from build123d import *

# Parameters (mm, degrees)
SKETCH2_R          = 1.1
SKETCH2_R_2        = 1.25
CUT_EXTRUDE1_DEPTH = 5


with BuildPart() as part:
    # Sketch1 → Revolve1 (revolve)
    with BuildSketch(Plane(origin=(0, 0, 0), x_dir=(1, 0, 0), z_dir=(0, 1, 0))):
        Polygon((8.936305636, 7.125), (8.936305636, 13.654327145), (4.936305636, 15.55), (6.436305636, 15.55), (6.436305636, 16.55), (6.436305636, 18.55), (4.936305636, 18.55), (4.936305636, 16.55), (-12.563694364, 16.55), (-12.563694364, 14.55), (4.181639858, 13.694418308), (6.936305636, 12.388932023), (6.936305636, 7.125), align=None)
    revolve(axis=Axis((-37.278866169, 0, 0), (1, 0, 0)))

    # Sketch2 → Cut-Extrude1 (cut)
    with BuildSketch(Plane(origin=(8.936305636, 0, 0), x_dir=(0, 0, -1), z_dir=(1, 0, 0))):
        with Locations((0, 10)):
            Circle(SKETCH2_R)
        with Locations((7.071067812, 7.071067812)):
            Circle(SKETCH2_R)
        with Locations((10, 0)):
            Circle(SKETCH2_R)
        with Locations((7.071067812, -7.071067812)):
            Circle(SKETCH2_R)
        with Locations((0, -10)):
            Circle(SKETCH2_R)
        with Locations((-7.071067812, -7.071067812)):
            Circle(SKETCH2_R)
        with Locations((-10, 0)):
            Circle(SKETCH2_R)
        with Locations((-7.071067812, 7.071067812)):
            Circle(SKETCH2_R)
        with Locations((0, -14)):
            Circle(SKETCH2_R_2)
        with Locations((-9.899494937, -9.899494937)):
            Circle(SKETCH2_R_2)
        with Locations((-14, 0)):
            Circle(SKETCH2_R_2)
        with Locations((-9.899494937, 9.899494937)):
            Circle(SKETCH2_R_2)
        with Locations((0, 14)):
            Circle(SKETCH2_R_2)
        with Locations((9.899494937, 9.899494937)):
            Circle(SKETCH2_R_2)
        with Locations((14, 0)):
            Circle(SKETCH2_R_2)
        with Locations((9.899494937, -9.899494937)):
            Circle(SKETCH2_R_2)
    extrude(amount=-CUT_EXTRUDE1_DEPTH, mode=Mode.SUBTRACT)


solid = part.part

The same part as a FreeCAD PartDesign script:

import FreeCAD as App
import Part
import Sketcher
Q = App.Units.Quantity


def add_polygon(sketch, points):
    """Adds a closed chain of lines whose ends are joined by coincident constraints."""
    first, n = sketch.GeometryCount, len(points)
    for a, b in zip(points, points[1:] + points[:1]):
        sketch.addGeometry(Part.LineSegment(App.Vector(*a, 0), App.Vector(*b, 0)), False)
    for i in range(n):
        sketch.addConstraint(Sketcher.Constraint("Coincident", first + i, 2, first + (i + 1) % n, 1))

doc = App.newDocument("Part")
body = doc.addObject("PartDesign::Body", "Body")

sketch1 = body.newObject("Sketcher::SketchObject", "Sketch")
sketch1.AttachmentSupport = (doc.getObject("XZ_Plane"), [""])
sketch1.MapMode = "FlatFace"
add_polygon(sketch1, [(8.936306, -7.125), (8.936306, -13.654327), (4.936306, -15.55), (6.436306, -15.55), (6.436306, -18.55), (4.936306, -18.55), (4.936306, -16.55), (-12.563694, -16.55), (-12.563694, -14.55), (4.18164, -13.694418), (6.936306, -12.388932), (6.936306, -7.125)])
sketch1.addConstraint(Sketcher.Constraint("Vertical", 0))
sketch1.addConstraint(Sketcher.Constraint("Horizontal", 2))
sketch1.addConstraint(Sketcher.Constraint("Vertical", 3))
sketch1.addConstraint(Sketcher.Constraint("Horizontal", 4))
sketch1.addConstraint(Sketcher.Constraint("Vertical", 5))
sketch1.addConstraint(Sketcher.Constraint("Horizontal", 6))
sketch1.addConstraint(Sketcher.Constraint("Vertical", 7))
sketch1.addConstraint(Sketcher.Constraint("Vertical", 10))
sketch1.addConstraint(Sketcher.Constraint("Horizontal", 11))
sketch1.addConstraint(Sketcher.Constraint("Parallel", 1, 9))
sketch1.addConstraint(Sketcher.Constraint("Vertical", 1, 2, 4, 2))
sketch1.addConstraint(Sketcher.Constraint("Equal", 11, 5))
sketch1.addConstraint(Sketcher.Constraint("Equal", 5, 7))
sketch1.addConstraint(Sketcher.Constraint("DistanceX", 11, 1, 11, 2, Q("2 mm")))
sketch1.addConstraint(Sketcher.Constraint("DistanceY", 3, 2, 3, 1, Q("3 mm")))
sketch1.addConstraint(Sketcher.Constraint("DistanceX", 2, 1, 2, 2, Q("1.5 mm")))
sketch1.addConstraint(Sketcher.Constraint("DistanceX", 6, 2, 6, 1, Q("17.5 mm")))
sketch1.addConstraint(Sketcher.Constraint("DistanceX", 1, 2, 0, 2, Q("4 mm")))
sketch1.addConstraint(Sketcher.Constraint("DistanceY", 1, 2, -1, 1, Q("15.55 mm")))
sketch1.addConstraint(Sketcher.Constraint("DistanceY", 10, 2, -1, 1, Q("7.125 mm")))
sketch1.addConstraint(Sketcher.Constraint("DistanceY", 0, 2, 0, 1, Q("6.529327 mm")))
sketch1.addConstraint(Sketcher.Constraint("DistanceY", 10, 1, 10, 2, Q("5.263932 mm")))
sketch1.addConstraint(Sketcher.Constraint("DistanceX", -1, 1, 8, 2, Q("4.18164 mm")))
sketch1.addConstraint(Sketcher.Constraint("DistanceY", 8, 2, -1, 1, Q("13.694418 mm")))
revolution = body.newObject("PartDesign::Revolution", "Revolution")
revolution.Profile = sketch1
revolution.ReferenceAxis = (sketch1, ["H_Axis"])
revolution.Angle = 360

sketch2 = body.newObject("Sketcher::SketchObject", "Sketch001")
sketch2.AttachmentSupport = (doc.getObject("YZ_Plane"), [""])
sketch2.MapMode = "FlatFace"
sketch2.AttachmentOffset = App.Placement(App.Vector(0, 0, 8.936306), App.Rotation())
sketch2.addGeometry(Part.Circle(App.Vector(10, 0, 0), App.Vector(0, 0, 1), 1.1), False)
sketch2.addGeometry(Part.Circle(App.Vector(7.071068, -7.071068, 0), App.Vector(0, 0, 1), 1.1), False)
sketch2.addGeometry(Part.Circle(App.Vector(0, -10, 0), App.Vector(0, 0, 1), 1.1), False)
sketch2.addGeometry(Part.Circle(App.Vector(-7.071068, -7.071068, 0), App.Vector(0, 0, 1), 1.1), False)
sketch2.addGeometry(Part.Circle(App.Vector(-10, 0, 0), App.Vector(0, 0, 1), 1.1), False)
sketch2.addGeometry(Part.Circle(App.Vector(-7.071068, 7.071068, 0), App.Vector(0, 0, 1), 1.1), False)
sketch2.addGeometry(Part.Circle(App.Vector(0, 10, 0), App.Vector(0, 0, 1), 1.1), False)
sketch2.addGeometry(Part.Circle(App.Vector(7.071068, 7.071068, 0), App.Vector(0, 0, 1), 1.1), False)
sketch2.addGeometry(Part.Circle(App.Vector(-14, 0, 0), App.Vector(0, 0, 1), 1.25), False)
sketch2.addGeometry(Part.Circle(App.Vector(-9.899495, 9.899495, 0), App.Vector(0, 0, 1), 1.25), False)
sketch2.addGeometry(Part.Circle(App.Vector(0, 14, 0), App.Vector(0, 0, 1), 1.25), False)
sketch2.addGeometry(Part.Circle(App.Vector(9.899495, 9.899495, 0), App.Vector(0, 0, 1), 1.25), False)
sketch2.addGeometry(Part.Circle(App.Vector(14, 0, 0), App.Vector(0, 0, 1), 1.25), False)
sketch2.addGeometry(Part.Circle(App.Vector(9.899495, -9.899495, 0), App.Vector(0, 0, 1), 1.25), False)
sketch2.addGeometry(Part.Circle(App.Vector(0, -14, 0), App.Vector(0, 0, 1), 1.25), False)
sketch2.addGeometry(Part.Circle(App.Vector(-9.899495, -9.899495, 0), App.Vector(0, 0, 1), 1.25), False)
sketch2.addConstraint(Sketcher.Constraint("Equal", 0, 1))
sketch2.addConstraint(Sketcher.Constraint("Equal", 1, 2))
sketch2.addConstraint(Sketcher.Constraint("Equal", 2, 3))
sketch2.addConstraint(Sketcher.Constraint("Equal", 3, 4))
sketch2.addConstraint(Sketcher.Constraint("Equal", 4, 5))
sketch2.addConstraint(Sketcher.Constraint("Equal", 5, 6))
sketch2.addConstraint(Sketcher.Constraint("Equal", 6, 7))
sketch2.addConstraint(Sketcher.Constraint("Equal", 8, 9))
sketch2.addConstraint(Sketcher.Constraint("Equal", 9, 10))
sketch2.addConstraint(Sketcher.Constraint("Equal", 10, 11))
sketch2.addConstraint(Sketcher.Constraint("Equal", 11, 12))
sketch2.addConstraint(Sketcher.Constraint("Equal", 12, 13))
sketch2.addConstraint(Sketcher.Constraint("Equal", 13, 14))
sketch2.addConstraint(Sketcher.Constraint("Equal", 14, 15))
sketch2.addConstraint(Sketcher.Constraint("Symmetric", 0, 3, 4, 3, -1, 1))
sketch2.addConstraint(Sketcher.Constraint("Symmetric", 1, 3, 5, 3, -1, 1))
sketch2.addConstraint(Sketcher.Constraint("Symmetric", 2, 3, 6, 3, -1, 1))
sketch2.addConstraint(Sketcher.Constraint("Symmetric", 3, 3, 7, 3, -1, 1))
sketch2.addConstraint(Sketcher.Constraint("Symmetric", 8, 3, 12, 3, -1, 1))
sketch2.addConstraint(Sketcher.Constraint("Symmetric", 9, 3, 13, 3, -1, 1))
sketch2.addConstraint(Sketcher.Constraint("Symmetric", 10, 3, 14, 3, -1, 1))
sketch2.addConstraint(Sketcher.Constraint("Symmetric", 11, 3, 15, 3, -1, 1))
sketch2.addConstraint(Sketcher.Constraint("Symmetric", 1, 3, 3, 3, -2))
sketch2.addConstraint(Sketcher.Constraint("Symmetric", 9, 3, 11, 3, -2))
sketch2.addConstraint(Sketcher.Constraint("PointOnObject", 0, 3, -1))
sketch2.addConstraint(Sketcher.Constraint("PointOnObject", 2, 3, -2))
sketch2.addConstraint(Sketcher.Constraint("PointOnObject", 8, 3, -1))
sketch2.addConstraint(Sketcher.Constraint("PointOnObject", 10, 3, -2))
sketch2.addConstraint(Sketcher.Constraint("Diameter", 0, Q("2.2 mm")))
sketch2.addConstraint(Sketcher.Constraint("Diameter", 8, Q("2.5 mm")))
sketch2.addConstraint(Sketcher.Constraint("DistanceX", -1, 1, 0, 3, Q("10 mm")))
sketch2.addConstraint(Sketcher.Constraint("DistanceY", 2, 3, -1, 1, Q("10 mm")))
sketch2.addConstraint(Sketcher.Constraint("DistanceX", 8, 3, -1, 1, Q("14 mm")))
sketch2.addConstraint(Sketcher.Constraint("DistanceY", -1, 1, 10, 3, Q("14 mm")))
sketch2.addConstraint(Sketcher.Constraint("DistanceX", -1, 1, 1, 3, Q("7.071068 mm")))
sketch2.addConstraint(Sketcher.Constraint("DistanceY", 1, 3, -1, 1, Q("7.071068 mm")))
sketch2.addConstraint(Sketcher.Constraint("DistanceX", 9, 3, -1, 1, Q("9.899495 mm")))
sketch2.addConstraint(Sketcher.Constraint("DistanceY", -1, 1, 9, 3, Q("9.899495 mm")))
pocket1 = body.newObject("PartDesign::Pocket", "Pocket")
pocket1.Profile = sketch2
pocket1.Length = 5

doc.recompute()
